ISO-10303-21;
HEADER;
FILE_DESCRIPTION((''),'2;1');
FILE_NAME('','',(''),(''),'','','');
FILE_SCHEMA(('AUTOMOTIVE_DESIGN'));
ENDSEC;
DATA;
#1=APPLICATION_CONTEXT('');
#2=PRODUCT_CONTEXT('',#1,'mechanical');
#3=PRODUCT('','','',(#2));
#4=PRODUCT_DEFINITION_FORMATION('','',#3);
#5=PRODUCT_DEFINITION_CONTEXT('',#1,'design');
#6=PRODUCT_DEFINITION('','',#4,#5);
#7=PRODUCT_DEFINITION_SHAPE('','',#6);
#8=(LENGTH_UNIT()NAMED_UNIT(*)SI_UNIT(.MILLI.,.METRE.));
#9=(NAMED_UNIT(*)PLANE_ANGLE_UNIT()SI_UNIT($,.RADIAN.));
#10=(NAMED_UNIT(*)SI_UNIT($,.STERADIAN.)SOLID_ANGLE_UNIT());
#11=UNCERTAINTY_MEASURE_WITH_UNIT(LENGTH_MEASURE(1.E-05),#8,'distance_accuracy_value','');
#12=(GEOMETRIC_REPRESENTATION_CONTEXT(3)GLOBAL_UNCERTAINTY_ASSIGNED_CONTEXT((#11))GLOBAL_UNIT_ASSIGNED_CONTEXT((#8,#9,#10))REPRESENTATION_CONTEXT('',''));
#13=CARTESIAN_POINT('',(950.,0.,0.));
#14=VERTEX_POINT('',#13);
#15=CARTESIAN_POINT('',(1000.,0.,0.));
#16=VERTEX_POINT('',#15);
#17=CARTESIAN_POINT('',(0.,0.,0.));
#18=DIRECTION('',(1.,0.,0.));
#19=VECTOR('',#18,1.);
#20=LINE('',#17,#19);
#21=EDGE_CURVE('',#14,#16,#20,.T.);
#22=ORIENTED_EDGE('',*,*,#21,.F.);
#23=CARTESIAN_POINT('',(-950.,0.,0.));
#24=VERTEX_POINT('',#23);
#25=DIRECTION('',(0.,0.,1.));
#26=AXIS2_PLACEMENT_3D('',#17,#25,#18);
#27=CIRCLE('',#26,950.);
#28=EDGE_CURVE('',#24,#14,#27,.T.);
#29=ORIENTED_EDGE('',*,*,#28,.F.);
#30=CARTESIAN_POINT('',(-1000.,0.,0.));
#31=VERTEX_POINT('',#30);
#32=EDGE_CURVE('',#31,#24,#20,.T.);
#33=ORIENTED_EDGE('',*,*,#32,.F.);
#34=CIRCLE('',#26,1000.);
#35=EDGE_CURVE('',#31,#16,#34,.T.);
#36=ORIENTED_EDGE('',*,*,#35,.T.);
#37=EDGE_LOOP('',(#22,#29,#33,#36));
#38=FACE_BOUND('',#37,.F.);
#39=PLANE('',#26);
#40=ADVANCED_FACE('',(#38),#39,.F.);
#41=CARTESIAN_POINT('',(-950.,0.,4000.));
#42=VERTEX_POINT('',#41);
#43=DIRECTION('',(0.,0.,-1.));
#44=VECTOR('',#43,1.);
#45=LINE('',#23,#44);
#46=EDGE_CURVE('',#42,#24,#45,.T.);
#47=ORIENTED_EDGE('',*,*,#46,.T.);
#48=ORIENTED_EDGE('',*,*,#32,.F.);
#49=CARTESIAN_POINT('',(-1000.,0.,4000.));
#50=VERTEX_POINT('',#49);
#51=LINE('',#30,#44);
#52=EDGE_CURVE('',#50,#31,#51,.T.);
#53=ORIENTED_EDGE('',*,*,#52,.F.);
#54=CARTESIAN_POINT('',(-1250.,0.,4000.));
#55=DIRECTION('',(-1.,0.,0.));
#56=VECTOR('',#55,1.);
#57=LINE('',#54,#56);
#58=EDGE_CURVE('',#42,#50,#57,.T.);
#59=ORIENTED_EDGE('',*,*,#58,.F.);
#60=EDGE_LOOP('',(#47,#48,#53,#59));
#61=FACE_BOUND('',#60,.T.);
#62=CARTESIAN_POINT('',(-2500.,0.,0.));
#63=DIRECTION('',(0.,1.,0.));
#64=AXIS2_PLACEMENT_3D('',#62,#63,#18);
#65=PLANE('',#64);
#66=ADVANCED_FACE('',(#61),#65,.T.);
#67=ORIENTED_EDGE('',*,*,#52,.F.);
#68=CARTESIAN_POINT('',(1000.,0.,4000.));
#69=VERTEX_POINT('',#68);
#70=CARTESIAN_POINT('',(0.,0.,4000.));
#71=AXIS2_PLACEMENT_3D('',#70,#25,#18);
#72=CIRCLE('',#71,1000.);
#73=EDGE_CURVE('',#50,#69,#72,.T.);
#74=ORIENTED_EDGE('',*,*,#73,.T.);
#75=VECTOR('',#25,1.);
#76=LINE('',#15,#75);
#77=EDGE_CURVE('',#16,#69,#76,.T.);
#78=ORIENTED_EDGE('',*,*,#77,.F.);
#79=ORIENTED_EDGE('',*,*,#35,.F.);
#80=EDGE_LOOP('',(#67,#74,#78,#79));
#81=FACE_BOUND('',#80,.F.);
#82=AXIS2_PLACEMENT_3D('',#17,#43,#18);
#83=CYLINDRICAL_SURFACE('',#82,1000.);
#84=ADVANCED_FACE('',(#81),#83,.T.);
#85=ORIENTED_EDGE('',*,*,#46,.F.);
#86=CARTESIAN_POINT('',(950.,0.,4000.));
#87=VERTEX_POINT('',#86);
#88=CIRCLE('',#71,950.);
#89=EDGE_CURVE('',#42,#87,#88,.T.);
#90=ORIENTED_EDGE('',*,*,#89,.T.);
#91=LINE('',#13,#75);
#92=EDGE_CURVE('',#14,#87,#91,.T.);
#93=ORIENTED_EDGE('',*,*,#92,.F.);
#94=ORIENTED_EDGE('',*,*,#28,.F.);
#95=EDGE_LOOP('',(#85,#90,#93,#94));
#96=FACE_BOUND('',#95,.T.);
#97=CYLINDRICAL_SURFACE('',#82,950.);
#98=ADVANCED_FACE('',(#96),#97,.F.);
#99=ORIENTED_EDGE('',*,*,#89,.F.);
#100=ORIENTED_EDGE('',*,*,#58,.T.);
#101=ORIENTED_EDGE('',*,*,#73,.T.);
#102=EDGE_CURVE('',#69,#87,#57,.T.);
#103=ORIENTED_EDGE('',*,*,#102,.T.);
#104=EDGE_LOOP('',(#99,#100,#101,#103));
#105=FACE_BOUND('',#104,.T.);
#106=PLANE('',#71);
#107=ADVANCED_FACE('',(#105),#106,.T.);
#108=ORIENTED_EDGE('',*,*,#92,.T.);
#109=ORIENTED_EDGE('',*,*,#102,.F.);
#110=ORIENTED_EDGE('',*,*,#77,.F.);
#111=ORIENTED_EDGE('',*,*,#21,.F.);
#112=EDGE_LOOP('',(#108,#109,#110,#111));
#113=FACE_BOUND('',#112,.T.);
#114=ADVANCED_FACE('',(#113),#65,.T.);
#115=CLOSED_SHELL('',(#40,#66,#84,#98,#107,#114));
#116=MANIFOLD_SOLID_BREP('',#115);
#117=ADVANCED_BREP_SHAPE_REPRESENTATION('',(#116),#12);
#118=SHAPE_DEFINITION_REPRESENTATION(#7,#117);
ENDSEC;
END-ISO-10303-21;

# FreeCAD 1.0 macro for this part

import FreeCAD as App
import Part
import Sketcher

V = App.Vector

doc = App.newDocument("Part")
body = doc.addObject("PartDesign::Body", "Body")

# Sketch on XY plane
sketch1 = doc.addObject("Sketcher::SketchObject", "Sketch")
body.addObject(sketch1)
sketch1.AttachmentSupport = (doc.XY_Plane, [""])
sketch1.MapMode = "FlatFace"
sketch1.addGeometry(Part.LineSegment(V(-2500, 2000, 0), V(-2500, 0, 0)), False)
sketch1.addGeometry(Part.LineSegment(V(-2500, 0, 0), V(2500, 0, 0)), False)
sketch1.addGeometry(Part.LineSegment(V(2500, 0, 0), V(2500, 2000, 0)), False)
sketch1.addGeometry(Part.LineSegment(V(2500, 2000, 0), V(-2500, 2000, 0)), False)
sketch1.addConstraint(Sketcher.Constraint("Coincident", 0, 2, 1, 1))
sketch1.addConstraint(Sketcher.Constraint("Coincident", 1, 2, 2, 1))
sketch1.addConstraint(Sketcher.Constraint("Coincident", 2, 2, 3, 1))
sketch1.addConstraint(Sketcher.Constraint("Coincident", 3, 2, 0, 1))
sketch1.addConstraint(Sketcher.Constraint("Vertical", 0))
sketch1.addConstraint(Sketcher.Constraint("Horizontal", 1))
sketch1.addConstraint(Sketcher.Constraint("Vertical", 2))
sketch1.addConstraint(Sketcher.Constraint("Horizontal", 3))
sketch1.addConstraint(Sketcher.Constraint("Symmetric", 0, 2, 1, 2, -1, 1))
sketch1.addConstraint(Sketcher.Constraint("DistanceX", 1, 1, 1, 2, 5000.0))
sketch1.addConstraint(Sketcher.Constraint("DistanceY", 0, 2, 0, 1, 2000.0))
pad1 = doc.addObject("PartDesign::Pad", "Pad")
body.addObject(pad1)
pad1.Profile = sketch1
pad1.Length = 20000
body2 = doc.addObject("PartDesign::Body", "Body001")

# Sketch on XY plane
sketch2 = doc.addObject("Sketcher::SketchObject", "Sketch001")
body2.addObject(sketch2)
sketch2.AttachmentSupport = (doc.getObject("XY_Plane001"), [""])
sketch2.MapMode = "FlatFace"
sketch2.addGeometry(Part.Circle(V(0, 0, 0), V(0, 0, 1), 1000), False)
sketch2.addGeometry(Part.Circle(V(0, 0, 0), V(0, 0, 1), 950), False)
sketch2.addConstraint(Sketcher.Constraint("Coincident", 0, 3, -1, 1))
sketch2.addConstraint(Sketcher.Constraint("Coincident", 1, 3, -1, 1))
sketch2.addConstraint(Sketcher.Constraint("Diameter", 0, 2000.0))
sketch2.addConstraint(Sketcher.Constraint("Diameter", 1, 1900.0))
pad2 = doc.addObject("PartDesign::Pad", "Pad001")
body2.addObject(pad2)
pad2.Profile = sketch2
pad2.Length = 4000
doc.recompute()

boolean = doc.addObject("PartDesign::Boolean", "Boolean")
body2.addObject(boolean)
boolean.Type = "Cut"
boolean.addObjects([body])

doc.recompute()
